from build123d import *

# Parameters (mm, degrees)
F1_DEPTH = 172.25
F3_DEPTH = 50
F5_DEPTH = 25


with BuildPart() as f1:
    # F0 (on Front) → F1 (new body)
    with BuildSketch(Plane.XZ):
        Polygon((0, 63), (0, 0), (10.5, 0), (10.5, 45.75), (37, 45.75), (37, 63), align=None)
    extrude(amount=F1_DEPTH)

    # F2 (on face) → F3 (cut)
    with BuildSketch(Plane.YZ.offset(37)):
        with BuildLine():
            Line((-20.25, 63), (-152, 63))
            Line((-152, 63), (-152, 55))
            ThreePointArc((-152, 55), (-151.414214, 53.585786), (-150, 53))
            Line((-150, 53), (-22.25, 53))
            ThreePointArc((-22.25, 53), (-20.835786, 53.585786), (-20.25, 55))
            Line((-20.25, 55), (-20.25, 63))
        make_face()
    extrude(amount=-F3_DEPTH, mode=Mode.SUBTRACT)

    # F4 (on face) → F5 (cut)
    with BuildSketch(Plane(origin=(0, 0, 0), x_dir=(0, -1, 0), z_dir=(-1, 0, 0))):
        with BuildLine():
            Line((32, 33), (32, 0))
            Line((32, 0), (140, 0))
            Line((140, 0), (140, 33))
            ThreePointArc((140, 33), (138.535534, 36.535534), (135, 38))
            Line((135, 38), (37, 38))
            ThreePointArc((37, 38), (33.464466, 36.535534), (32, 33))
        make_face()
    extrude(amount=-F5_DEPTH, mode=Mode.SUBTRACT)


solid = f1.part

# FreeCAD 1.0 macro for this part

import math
import FreeCAD as App
import Part
import Sketcher

V = App.Vector
Q = App.Units.Quantity


def add_polygon(sketch, points):
    """Adds a closed chain of lines whose ends are joined by coincident constraints."""
    first, n = sketch.GeometryCount, len(points)
    for a, b in zip(points, points[1:] + points[:1]):
        sketch.addGeometry(Part.LineSegment(App.Vector(*a, 0), App.Vector(*b, 0)), False)
    for i in range(n):
        sketch.addConstraint(Sketcher.Constraint("Coincident", first + i, 2, first + (i + 1) % n, 1))

doc = App.newDocument("Part")
body = doc.addObject("PartDesign::Body", "Body")

sketch1 = body.newObject("Sketcher::SketchObject", "Sketch")
sketch1.AttachmentSupport = (doc.getObject("XZ_Plane"), [""])
sketch1.MapMode = "FlatFace"
add_polygon(sketch1, [(0, 63), (0, 0), (10, 0), (10, 46), (37, 46), (37, 63)])
sketch1.addConstraint(Sketcher.Constraint("Vertical", 0))
sketch1.addConstraint(Sketcher.Constraint("Horizontal", 1))
sketch1.addConstraint(Sketcher.Constraint("Vertical", 2))
sketch1.addConstraint(Sketcher.Constraint("Horizontal", 3))
sketch1.addConstraint(Sketcher.Constraint("Vertical", 4))
sketch1.addConstraint(Sketcher.Constraint("Horizontal", 5))
sketch1.addConstraint(Sketcher.Constraint("Coincident", 0, 2, -1, 1))
sketch1.addConstraint(Sketcher.Constraint("DistanceX", 5, 2, 5, 1, Q("37 mm")))
sketch1.addConstraint(Sketcher.Constraint("DistanceY", 0, 2, 0, 1, Q("63 mm")))
sketch1.addConstraint(Sketcher.Constraint("DistanceX", 1, 1, 1, 2, Q("10.5 mm")))
sketch1.addConstraint(Sketcher.Constraint("DistanceY", 2, 1, 2, 2, Q("45.75 mm")))
pad1 = body.newObject("PartDesign::Pad", "Pad")
pad1.Profile = sketch1
pad1.Length = 172.25

sketch2 = body.newObject("Sketcher::SketchObject", "Sketch001")
sketch2.AttachmentSupport = (doc.getObject("YZ_Plane"), [""])
sketch2.MapMode = "FlatFace"
sketch2.AttachmentOffset = App.Placement(V(0, 0, 37), App.Rotation())
sketch2.addGeometry(Part.LineSegment(V(-20.2, 63, 0), V(-152, 63, 0)), False)
sketch2.addGeometry(Part.LineSegment(V(-152, 63, 0), V(-152, 55, 0)), False)
sketch2.addGeometry(Part.ArcOfCircle(Part.Circle(V(-150, 55, 0), V(0, 0, 1), 2), math.radians(180), math.radians(270)), False)
sketch2.addGeometry(Part.LineSegment(V(-150, 53, 0), V(-22.2, 53, 0)), False)
sketch2.addGeometry(Part.ArcOfCircle(Part.Circle(V(-22.2, 55, 0), V(0, 0, 1), 2), math.radians(-90), math.radians(0)), False)
sketch2.addGeometry(Part.LineSegment(V(-20.2, 55, 0), V(-20.2, 63, 0)), False)
sketch2.addConstraint(Sketcher.Constraint("Coincident", 0, 2, 1, 1))
sketch2.addConstraint(Sketcher.Constraint("Tangent", 1, 2, 2, 1))
sketch2.addConstraint(Sketcher.Constraint("Tangent", 2, 2, 3, 1))
sketch2.addConstraint(Sketcher.Constraint("Tangent", 3, 2, 4, 1))
sketch2.addConstraint(Sketcher.Constraint("Tangent", 4, 2, 5, 1))
sketch2.addConstraint(Sketcher.Constraint("Coincident", 5, 2, 0, 1))
sketch2.addConstraint(Sketcher.Constraint("Horizontal", 0))
sketch2.addConstraint(Sketcher.Constraint("Vertical", 1))
sketch2.addConstraint(Sketcher.Constraint("Horizontal", 3))
sketch2.addConstraint(Sketcher.Constraint("Vertical", 5))
sketch2.addConstraint(Sketcher.Constraint("Equal", 2, 4))
sketch2.addConstraint(Sketcher.Constraint("Radius", 2, Q("1.999999 mm")))
sketch2.addConstraint(Sketcher.Constraint("DistanceY", 1, 2, 1, 1, Q("8 mm")))
sketch2.addConstraint(Sketcher.Constraint("DistanceX", 2, 3, -1, 1, Q("150.000001 mm")))
sketch2.addConstraint(Sketcher.Constraint("DistanceY", -1, 1, 2, 3, Q("54.999999 mm")))
sketch2.addConstraint(Sketcher.Constraint("DistanceX", 0, 2, 0, 1, Q("131.75 mm")))
pocket1 = body.newObject("PartDesign::Pocket", "Pocket")
pocket1.Profile = sketch2
pocket1.Length = 50

sketch3 = body.newObject("Sketcher::SketchObject", "Sketch002")
sketch3.AttachmentSupport = (doc.getObject("YZ_Plane"), [""])
sketch3.MapMode = "FlatFace"
sketch3.addGeometry(Part.LineSegment(V(-32, 33, 0), V(-32, 0, 0)), False)
sketch3.addGeometry(Part.LineSegment(V(-32, 0, 0), V(-140, 0, 0)), False)
sketch3.addGeometry(Part.LineSegment(V(-140, 0, 0), V(-140, 33, 0)), False)
sketch3.addGeometry(Part.ArcOfCircle(Part.Circle(V(-135, 33, 0), V(0, 0, 1), 5), math.radians(90), math.radians(180)), False)
sketch3.addGeometry(Part.LineSegment(V(-135, 38, 0), V(-37, 38, 0)), False)
sketch3.addGeometry(Part.ArcOfCircle(Part.Circle(V(-37, 33, 0), V(0, 0, 1), 5), math.radians(0), math.radians(90)), False)
sketch3.addConstraint(Sketcher.Constraint("Coincident", 0, 2, 1, 1))
sketch3.addConstraint(Sketcher.Constraint("Coincident", 1, 2, 2, 1))
sketch3.addConstraint(Sketcher.Constraint("Tangent", 2, 2, 3, 2))
sketch3.addConstraint(Sketcher.Constraint("Tangent", 3, 1, 4, 1))
sketch3.addConstraint(Sketcher.Constraint("Tangent", 4, 2, 5, 2))
sketch3.addConstraint(Sketcher.Constraint("Tangent", 5, 1, 0, 1))
sketch3.addConstraint(Sketcher.Constraint("Vertical", 0))
sketch3.addConstraint(Sketcher.Constraint("Horizontal", 1))
sketch3.addConstraint(Sketcher.Constraint("Vertical", 2))
sketch3.addConstraint(Sketcher.Constraint("Horizontal", 4))
sketch3.addConstraint(Sketcher.Constraint("Equal", 3, 5))
sketch3.addConstraint(Sketcher.Constraint("PointOnObject", 0, 2, -1))
sketch3.addConstraint(Sketcher.Constraint("Radius", 3, Q("5 mm")))
sketch3.addConstraint(Sketcher.Constraint("DistanceX", 1, 2, 1, 1, Q("108 mm")))
sketch3.addConstraint(Sketcher.Constraint("DistanceY", 0, 2, 0, 1, Q("33 mm")))
sketch3.addConstraint(Sketcher.Constraint("DistanceX", 3, 3, -1, 1, Q("135 mm")))
pocket2 = body.newObject("PartDesign::Pocket", "Pocket001")
pocket2.Profile = sketch3
pocket2.Length = 25
pocket2.Reversed = True

doc.recompute()
